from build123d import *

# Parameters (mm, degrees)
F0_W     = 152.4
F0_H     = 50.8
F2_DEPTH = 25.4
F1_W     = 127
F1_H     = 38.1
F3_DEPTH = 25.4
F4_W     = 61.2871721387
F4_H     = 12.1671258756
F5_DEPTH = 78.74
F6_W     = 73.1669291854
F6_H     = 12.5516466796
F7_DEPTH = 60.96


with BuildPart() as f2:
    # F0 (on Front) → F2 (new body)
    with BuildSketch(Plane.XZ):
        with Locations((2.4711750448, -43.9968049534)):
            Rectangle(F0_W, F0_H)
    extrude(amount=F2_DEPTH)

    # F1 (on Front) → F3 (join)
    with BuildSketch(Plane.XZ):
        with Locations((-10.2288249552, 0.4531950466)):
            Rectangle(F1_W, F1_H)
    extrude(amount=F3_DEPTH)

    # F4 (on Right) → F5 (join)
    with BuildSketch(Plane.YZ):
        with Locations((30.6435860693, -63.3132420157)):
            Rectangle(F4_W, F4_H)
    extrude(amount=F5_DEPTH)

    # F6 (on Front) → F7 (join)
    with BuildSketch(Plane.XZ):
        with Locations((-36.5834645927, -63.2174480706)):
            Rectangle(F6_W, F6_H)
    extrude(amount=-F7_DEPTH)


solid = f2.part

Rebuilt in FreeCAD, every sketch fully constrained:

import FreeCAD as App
import Part
import Sketcher
Q = App.Units.Quantity


def add_polygon(sketch, points):
    """Adds a closed chain of lines whose ends are joined by coincident constraints."""
    first, n = sketch.GeometryCount, len(points)
    for a, b in zip(points, points[1:] + points[:1]):
        sketch.addGeometry(Part.LineSegment(App.Vector(*a, 0), App.Vector(*b, 0)), False)
    for i in range(n):
        sketch.addConstraint(Sketcher.Constraint("Coincident", first + i, 2, first + (i + 1) % n, 1))

doc = App.newDocument("Part")
body = doc.addObject("PartDesign::Body", "Body")

# Sketch on XZ plane
sketch1 = doc.addObject("Sketcher::SketchObject", "Sketch")
body.addObject(sketch1)
sketch1.AttachmentSupport = (doc.XZ_Plane, [""])
sketch1.MapMode = "FlatFace"
add_polygon(sketch1, [(-73.728825, -18.596805), (-73.728825, -69.396805), (78.671175, -69.396805), (78.671175, -18.596805)])  # lines 0-3
sketch1.addConstraint([
    Sketcher.Constraint("Vertical", 0),
    Sketcher.Constraint("Horizontal", 1),
    Sketcher.Constraint("Vertical", 2),
    Sketcher.Constraint("Horizontal", 3),
    Sketcher.Constraint("DistanceX", 1, 1, 1, 2, Q("6 in")),
    Sketcher.Constraint("DistanceY", 0, 2, 0, 1, Q("2 in")),
    Sketcher.Constraint("DistanceX", 0, 2, -1, 1, 73.728825),
    Sketcher.Constraint("DistanceY", 0, 2, -1, 1, 69.396805),
])
pad1 = doc.addObject("PartDesign::Pad", "Pad")
body.addObject(pad1)
pad1.Profile = sketch1
pad1.Length = Q("1 in")

# Sketch on XZ plane
sketch2 = doc.addObject("Sketcher::SketchObject", "Sketch001")
body.addObject(sketch2)
sketch2.AttachmentSupport = (doc.XZ_Plane, [""])
sketch2.MapMode = "FlatFace"
add_polygon(sketch2, [(-73.728825, 19.503195), (-73.728825, -18.596805), (53.271175, -18.596805), (53.271175, 19.503195)])  # lines 0-3
sketch2.addConstraint([
    Sketcher.Constraint("Vertical", 0),
    Sketcher.Constraint("Horizontal", 1),
    Sketcher.Constraint("Vertical", 2),
    Sketcher.Constraint("Horizontal", 3),
    Sketcher.Constraint("DistanceX", 1, 1, 1, 2, Q("5 in")),
    Sketcher.Constraint("DistanceY", 0, 2, 0, 1, Q("1.5 in")),
    Sketcher.Constraint("DistanceX", 0, 2, -1, 1, 73.728825),
    Sketcher.Constraint("DistanceY", 0, 2, -1, 1, 18.596805),
])
pad2 = doc.addObject("PartDesign::Pad", "Pad001")
body.addObject(pad2)
pad2.Profile = sketch2
pad2.Length = Q("1 in")

# Sketch on YZ plane
sketch3 = doc.addObject("Sketcher::SketchObject", "Sketch002")
body.addObject(sketch3)
sketch3.AttachmentSupport = (doc.YZ_Plane, [""])
sketch3.MapMode = "FlatFace"
add_polygon(sketch3, [(0, -57.229679), (0, -69.396805), (61.287172, -69.396805), (61.287172, -57.229679)])  # lines 0-3
sketch3.addConstraint([
    Sketcher.Constraint("Vertical", 0),
    Sketcher.Constraint("Horizontal", 1),
    Sketcher.Constraint("Vertical", 2),
    Sketcher.Constraint("Horizontal", 3),
    Sketcher.Constraint("PointOnObject", 0, 2, -2),
    Sketcher.Constraint("DistanceX", 1, 1, 1, 2, 61.287172),
    Sketcher.Constraint("DistanceY", 0, 2, 0, 1, 12.167126),
    Sketcher.Constraint("DistanceY", 2, 2, -1, 1, 57.229679),
])
pad3 = doc.addObject("PartDesign::Pad", "Pad002")
body.addObject(pad3)
pad3.Profile = sketch3
pad3.Length = Q("3.1 in")

# Sketch on XZ plane
sketch4 = doc.addObject("Sketcher::SketchObject", "Sketch003")
body.addObject(sketch4)
sketch4.AttachmentSupport = (doc.XZ_Plane, [""])
sketch4.MapMode = "FlatFace"
add_polygon(sketch4, [(-73.166929, -56.941625), (-73.166929, -69.493271), (0, -69.493271), (0, -56.941625)])  # lines 0-3
sketch4.addConstraint([
    Sketcher.Constraint("Vertical", 0),
    Sketcher.Constraint("Horizontal", 1),
    Sketcher.Constraint("Vertical", 2),
    Sketcher.Constraint("Horizontal", 3),
    Sketcher.Constraint("PointOnObject", 1, 2, -2),
    Sketcher.Constraint("DistanceX", 1, 1, 1, 2, 73.166929),
    Sketcher.Constraint("DistanceY", 0, 2, 0, 1, 12.551647),
    Sketcher.Constraint("DistanceY", 0, 2, -1, 1, 69.493271),
])
pad4 = doc.addObject("PartDesign::Pad", "Pad003")
body.addObject(pad4)
pad4.Profile = sketch4
pad4.Length = Q("2.4 in")
pad4.Reversed = True

doc.recompute()
